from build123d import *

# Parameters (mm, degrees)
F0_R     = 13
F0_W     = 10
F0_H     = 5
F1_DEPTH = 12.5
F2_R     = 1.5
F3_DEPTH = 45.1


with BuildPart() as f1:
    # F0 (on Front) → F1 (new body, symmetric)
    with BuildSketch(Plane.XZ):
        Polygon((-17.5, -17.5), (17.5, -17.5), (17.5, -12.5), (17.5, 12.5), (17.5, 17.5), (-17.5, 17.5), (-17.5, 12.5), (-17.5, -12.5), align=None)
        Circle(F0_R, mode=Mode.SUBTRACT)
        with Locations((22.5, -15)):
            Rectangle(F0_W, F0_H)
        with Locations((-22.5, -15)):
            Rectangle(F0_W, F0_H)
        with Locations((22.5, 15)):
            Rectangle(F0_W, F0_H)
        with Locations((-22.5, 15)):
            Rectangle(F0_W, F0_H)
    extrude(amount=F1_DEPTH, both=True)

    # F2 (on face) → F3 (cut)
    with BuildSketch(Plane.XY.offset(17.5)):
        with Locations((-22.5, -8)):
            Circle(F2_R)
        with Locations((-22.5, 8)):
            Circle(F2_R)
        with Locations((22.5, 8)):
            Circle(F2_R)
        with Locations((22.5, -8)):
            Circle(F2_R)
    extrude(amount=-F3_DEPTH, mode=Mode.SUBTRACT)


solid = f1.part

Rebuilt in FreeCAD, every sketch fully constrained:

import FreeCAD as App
import Part
import Sketcher

V = App.Vector
Q = App.Units.Quantity

doc = App.newDocument("Part")
body = doc.addObject("PartDesign::Body", "Body")

# Sketch on XZ plane
sketch1 = body.newObject("Sketcher::SketchObject", "Sketch")
sketch1.AttachmentSupport = (doc.getObject("XZ_Plane"), [""])
sketch1.MapMode = "FlatFace"
sketch1.addGeometry(Part.LineSegment(V(28, -18, 0), V(28, -12, 0)), False)
sketch1.addGeometry(Part.LineSegment(V(28, -12, 0), V(18, -12, 0)), False)
sketch1.addGeometry(Part.LineSegment(V(18, -12, 0), V(18, 12, 0)), False)
sketch1.addGeometry(Part.LineSegment(V(18, 12, 0), V(28, 12, 0)), False)
sketch1.addGeometry(Part.LineSegment(V(28, 12, 0), V(28, 18, 0)), False)
sketch1.addGeometry(Part.LineSegment(V(28, 18, 0), V(-28, 18, 0)), False)
sketch1.addGeometry(Part.LineSegment(V(-28, 18, 0), V(-28, 12, 0)), False)
sketch1.addGeometry(Part.LineSegment(V(-28, 12, 0), V(-18, 12, 0)), False)
sketch1.addGeometry(Part.LineSegment(V(-18, 12, 0), V(-18, -12, 0)), False)
sketch1.addGeometry(Part.LineSegment(V(-18, -12, 0), V(-28, -12, 0)), False)
sketch1.addGeometry(Part.LineSegment(V(-28, -12, 0), V(-28, -18, 0)), False)
sketch1.addGeometry(Part.LineSegment(V(-28, -18, 0), V(28, -18, 0)), False)
sketch1.addGeometry(Part.Circle(V(0, 0, 0), V(0, 0, 1), 13), False)
sketch1.addConstraint(Sketcher.Constraint("Coincident", 0, 2, 1, 1))
sketch1.addConstraint(Sketcher.Constraint("Coincident", 1, 2, 2, 1))
sketch1.addConstraint(Sketcher.Constraint("Coincident", 2, 2, 3, 1))
sketch1.addConstraint(Sketcher.Constraint("Coincident", 3, 2, 4, 1))
sketch1.addConstraint(Sketcher.Constraint("Coincident", 4, 2, 5, 1))
sketch1.addConstraint(Sketcher.Constraint("Coincident", 5, 2, 6, 1))
sketch1.addConstraint(Sketcher.Constraint("Coincident", 6, 2, 7, 1))
sketch1.addConstraint(Sketcher.Constraint("Coincident", 7, 2, 8, 1))
sketch1.addConstraint(Sketcher.Constraint("Coincident", 8, 2, 9, 1))
sketch1.addConstraint(Sketcher.Constraint("Coincident", 9, 2, 10, 1))
sketch1.addConstraint(Sketcher.Constraint("Coincident", 10, 2, 11, 1))
sketch1.addConstraint(Sketcher.Constraint("Coincident", 11, 2, 0, 1))
sketch1.addConstraint(Sketcher.Constraint("Vertical", 0))
sketch1.addConstraint(Sketcher.Constraint("Horizontal", 1))
sketch1.addConstraint(Sketcher.Constraint("Vertical", 2))
sketch1.addConstraint(Sketcher.Constraint("Horizontal", 3))
sketch1.addConstraint(Sketcher.Constraint("Vertical", 4))
sketch1.addConstraint(Sketcher.Constraint("Horizontal", 5))
sketch1.addConstraint(Sketcher.Constraint("Vertical", 6))
sketch1.addConstraint(Sketcher.Constraint("Horizontal", 7))
sketch1.addConstraint(Sketcher.Constraint("Vertical", 8))
sketch1.addConstraint(Sketcher.Constraint("Horizontal", 9))
sketch1.addConstraint(Sketcher.Constraint("Vertical", 10))
sketch1.addConstraint(Sketcher.Constraint("Horizontal", 11))
sketch1.addConstraint(Sketcher.Constraint("Coincident", 12, 3, -1, 1))
sketch1.addConstraint(Sketcher.Constraint("Symmetric", 0, 2, 6, 2, -1, 1))
sketch1.addConstraint(Sketcher.Constraint("Symmetric", 2, 2, 8, 2, -1, 1))
sketch1.addConstraint(Sketcher.Constraint("Symmetric", 4, 2, 10, 2, -1, 1))
sketch1.addConstraint(Sketcher.Constraint("Symmetric", 3, 2, 6, 2, -2))
sketch1.addConstraint(Sketcher.Constraint("Diameter", 12, Q("26 mm")))
sketch1.addConstraint(Sketcher.Constraint("DistanceX", 1, 2, 1, 1, Q("10 mm")))
sketch1.addConstraint(Sketcher.Constraint("DistanceX", 5, 2, 5, 1, Q("55 mm")))
sketch1.addConstraint(Sketcher.Constraint("DistanceY", 0, 1, 0, 2, Q("5 mm")))
sketch1.addConstraint(Sketcher.Constraint("DistanceY", 2, 1, 2, 2, Q("25 mm")))
pad1 = body.newObject("PartDesign::Pad", "Pad")
pad1.Profile = sketch1
pad1.Length = 25
pad1.Midplane = True

# Sketch on XY plane
sketch2 = body.newObject("Sketcher::SketchObject", "Sketch001")
sketch2.AttachmentSupport = (doc.getObject("XY_Plane"), [""])
sketch2.MapMode = "FlatFace"
sketch2.AttachmentOffset = App.Placement(V(0, 0, 17.5), App.Rotation())
sketch2.addGeometry(Part.Circle(V(-22.5, -8, 0), V(0, 0, 1), 1.5), False)
sketch2.addGeometry(Part.Circle(V(-22.5, 8, 0), V(0, 0, 1), 1.5), False)
sketch2.addGeometry(Part.Circle(V(22.5, 8, 0), V(0, 0, 1), 1.5), False)
sketch2.addGeometry(Part.Circle(V(22.5, -8, 0), V(0, 0, 1), 1.5), False)
sketch2.addConstraint(Sketcher.Constraint("Equal", 0, 1))
sketch2.addConstraint(Sketcher.Constraint("Equal", 1, 2))
sketch2.addConstraint(Sketcher.Constraint("Equal", 2, 3))
sketch2.addConstraint(Sketcher.Constraint("Symmetric", 0, 3, 2, 3, -1, 1))
sketch2.addConstraint(Sketcher.Constraint("Symmetric", 1, 3, 3, 3, -1, 1))
sketch2.addConstraint(Sketcher.Constraint("Symmetric", 1, 3, 2, 3, -2))
sketch2.addConstraint(Sketcher.Constraint("Diameter", 0, Q("3 mm")))
sketch2.addConstraint(Sketcher.Constraint("DistanceY", 0, 3, -1, 1, Q("8 mm")))
sketch2.addConstraint(Sketcher.Constraint("DistanceX", 1, 3, 2, 3, Q("45 mm")))
pocket1 = body.newObject("PartDesign::Pocket", "Pocket")
pocket1.Profile = sketch2
pocket1.Length = 45.1

doc.recompute()
